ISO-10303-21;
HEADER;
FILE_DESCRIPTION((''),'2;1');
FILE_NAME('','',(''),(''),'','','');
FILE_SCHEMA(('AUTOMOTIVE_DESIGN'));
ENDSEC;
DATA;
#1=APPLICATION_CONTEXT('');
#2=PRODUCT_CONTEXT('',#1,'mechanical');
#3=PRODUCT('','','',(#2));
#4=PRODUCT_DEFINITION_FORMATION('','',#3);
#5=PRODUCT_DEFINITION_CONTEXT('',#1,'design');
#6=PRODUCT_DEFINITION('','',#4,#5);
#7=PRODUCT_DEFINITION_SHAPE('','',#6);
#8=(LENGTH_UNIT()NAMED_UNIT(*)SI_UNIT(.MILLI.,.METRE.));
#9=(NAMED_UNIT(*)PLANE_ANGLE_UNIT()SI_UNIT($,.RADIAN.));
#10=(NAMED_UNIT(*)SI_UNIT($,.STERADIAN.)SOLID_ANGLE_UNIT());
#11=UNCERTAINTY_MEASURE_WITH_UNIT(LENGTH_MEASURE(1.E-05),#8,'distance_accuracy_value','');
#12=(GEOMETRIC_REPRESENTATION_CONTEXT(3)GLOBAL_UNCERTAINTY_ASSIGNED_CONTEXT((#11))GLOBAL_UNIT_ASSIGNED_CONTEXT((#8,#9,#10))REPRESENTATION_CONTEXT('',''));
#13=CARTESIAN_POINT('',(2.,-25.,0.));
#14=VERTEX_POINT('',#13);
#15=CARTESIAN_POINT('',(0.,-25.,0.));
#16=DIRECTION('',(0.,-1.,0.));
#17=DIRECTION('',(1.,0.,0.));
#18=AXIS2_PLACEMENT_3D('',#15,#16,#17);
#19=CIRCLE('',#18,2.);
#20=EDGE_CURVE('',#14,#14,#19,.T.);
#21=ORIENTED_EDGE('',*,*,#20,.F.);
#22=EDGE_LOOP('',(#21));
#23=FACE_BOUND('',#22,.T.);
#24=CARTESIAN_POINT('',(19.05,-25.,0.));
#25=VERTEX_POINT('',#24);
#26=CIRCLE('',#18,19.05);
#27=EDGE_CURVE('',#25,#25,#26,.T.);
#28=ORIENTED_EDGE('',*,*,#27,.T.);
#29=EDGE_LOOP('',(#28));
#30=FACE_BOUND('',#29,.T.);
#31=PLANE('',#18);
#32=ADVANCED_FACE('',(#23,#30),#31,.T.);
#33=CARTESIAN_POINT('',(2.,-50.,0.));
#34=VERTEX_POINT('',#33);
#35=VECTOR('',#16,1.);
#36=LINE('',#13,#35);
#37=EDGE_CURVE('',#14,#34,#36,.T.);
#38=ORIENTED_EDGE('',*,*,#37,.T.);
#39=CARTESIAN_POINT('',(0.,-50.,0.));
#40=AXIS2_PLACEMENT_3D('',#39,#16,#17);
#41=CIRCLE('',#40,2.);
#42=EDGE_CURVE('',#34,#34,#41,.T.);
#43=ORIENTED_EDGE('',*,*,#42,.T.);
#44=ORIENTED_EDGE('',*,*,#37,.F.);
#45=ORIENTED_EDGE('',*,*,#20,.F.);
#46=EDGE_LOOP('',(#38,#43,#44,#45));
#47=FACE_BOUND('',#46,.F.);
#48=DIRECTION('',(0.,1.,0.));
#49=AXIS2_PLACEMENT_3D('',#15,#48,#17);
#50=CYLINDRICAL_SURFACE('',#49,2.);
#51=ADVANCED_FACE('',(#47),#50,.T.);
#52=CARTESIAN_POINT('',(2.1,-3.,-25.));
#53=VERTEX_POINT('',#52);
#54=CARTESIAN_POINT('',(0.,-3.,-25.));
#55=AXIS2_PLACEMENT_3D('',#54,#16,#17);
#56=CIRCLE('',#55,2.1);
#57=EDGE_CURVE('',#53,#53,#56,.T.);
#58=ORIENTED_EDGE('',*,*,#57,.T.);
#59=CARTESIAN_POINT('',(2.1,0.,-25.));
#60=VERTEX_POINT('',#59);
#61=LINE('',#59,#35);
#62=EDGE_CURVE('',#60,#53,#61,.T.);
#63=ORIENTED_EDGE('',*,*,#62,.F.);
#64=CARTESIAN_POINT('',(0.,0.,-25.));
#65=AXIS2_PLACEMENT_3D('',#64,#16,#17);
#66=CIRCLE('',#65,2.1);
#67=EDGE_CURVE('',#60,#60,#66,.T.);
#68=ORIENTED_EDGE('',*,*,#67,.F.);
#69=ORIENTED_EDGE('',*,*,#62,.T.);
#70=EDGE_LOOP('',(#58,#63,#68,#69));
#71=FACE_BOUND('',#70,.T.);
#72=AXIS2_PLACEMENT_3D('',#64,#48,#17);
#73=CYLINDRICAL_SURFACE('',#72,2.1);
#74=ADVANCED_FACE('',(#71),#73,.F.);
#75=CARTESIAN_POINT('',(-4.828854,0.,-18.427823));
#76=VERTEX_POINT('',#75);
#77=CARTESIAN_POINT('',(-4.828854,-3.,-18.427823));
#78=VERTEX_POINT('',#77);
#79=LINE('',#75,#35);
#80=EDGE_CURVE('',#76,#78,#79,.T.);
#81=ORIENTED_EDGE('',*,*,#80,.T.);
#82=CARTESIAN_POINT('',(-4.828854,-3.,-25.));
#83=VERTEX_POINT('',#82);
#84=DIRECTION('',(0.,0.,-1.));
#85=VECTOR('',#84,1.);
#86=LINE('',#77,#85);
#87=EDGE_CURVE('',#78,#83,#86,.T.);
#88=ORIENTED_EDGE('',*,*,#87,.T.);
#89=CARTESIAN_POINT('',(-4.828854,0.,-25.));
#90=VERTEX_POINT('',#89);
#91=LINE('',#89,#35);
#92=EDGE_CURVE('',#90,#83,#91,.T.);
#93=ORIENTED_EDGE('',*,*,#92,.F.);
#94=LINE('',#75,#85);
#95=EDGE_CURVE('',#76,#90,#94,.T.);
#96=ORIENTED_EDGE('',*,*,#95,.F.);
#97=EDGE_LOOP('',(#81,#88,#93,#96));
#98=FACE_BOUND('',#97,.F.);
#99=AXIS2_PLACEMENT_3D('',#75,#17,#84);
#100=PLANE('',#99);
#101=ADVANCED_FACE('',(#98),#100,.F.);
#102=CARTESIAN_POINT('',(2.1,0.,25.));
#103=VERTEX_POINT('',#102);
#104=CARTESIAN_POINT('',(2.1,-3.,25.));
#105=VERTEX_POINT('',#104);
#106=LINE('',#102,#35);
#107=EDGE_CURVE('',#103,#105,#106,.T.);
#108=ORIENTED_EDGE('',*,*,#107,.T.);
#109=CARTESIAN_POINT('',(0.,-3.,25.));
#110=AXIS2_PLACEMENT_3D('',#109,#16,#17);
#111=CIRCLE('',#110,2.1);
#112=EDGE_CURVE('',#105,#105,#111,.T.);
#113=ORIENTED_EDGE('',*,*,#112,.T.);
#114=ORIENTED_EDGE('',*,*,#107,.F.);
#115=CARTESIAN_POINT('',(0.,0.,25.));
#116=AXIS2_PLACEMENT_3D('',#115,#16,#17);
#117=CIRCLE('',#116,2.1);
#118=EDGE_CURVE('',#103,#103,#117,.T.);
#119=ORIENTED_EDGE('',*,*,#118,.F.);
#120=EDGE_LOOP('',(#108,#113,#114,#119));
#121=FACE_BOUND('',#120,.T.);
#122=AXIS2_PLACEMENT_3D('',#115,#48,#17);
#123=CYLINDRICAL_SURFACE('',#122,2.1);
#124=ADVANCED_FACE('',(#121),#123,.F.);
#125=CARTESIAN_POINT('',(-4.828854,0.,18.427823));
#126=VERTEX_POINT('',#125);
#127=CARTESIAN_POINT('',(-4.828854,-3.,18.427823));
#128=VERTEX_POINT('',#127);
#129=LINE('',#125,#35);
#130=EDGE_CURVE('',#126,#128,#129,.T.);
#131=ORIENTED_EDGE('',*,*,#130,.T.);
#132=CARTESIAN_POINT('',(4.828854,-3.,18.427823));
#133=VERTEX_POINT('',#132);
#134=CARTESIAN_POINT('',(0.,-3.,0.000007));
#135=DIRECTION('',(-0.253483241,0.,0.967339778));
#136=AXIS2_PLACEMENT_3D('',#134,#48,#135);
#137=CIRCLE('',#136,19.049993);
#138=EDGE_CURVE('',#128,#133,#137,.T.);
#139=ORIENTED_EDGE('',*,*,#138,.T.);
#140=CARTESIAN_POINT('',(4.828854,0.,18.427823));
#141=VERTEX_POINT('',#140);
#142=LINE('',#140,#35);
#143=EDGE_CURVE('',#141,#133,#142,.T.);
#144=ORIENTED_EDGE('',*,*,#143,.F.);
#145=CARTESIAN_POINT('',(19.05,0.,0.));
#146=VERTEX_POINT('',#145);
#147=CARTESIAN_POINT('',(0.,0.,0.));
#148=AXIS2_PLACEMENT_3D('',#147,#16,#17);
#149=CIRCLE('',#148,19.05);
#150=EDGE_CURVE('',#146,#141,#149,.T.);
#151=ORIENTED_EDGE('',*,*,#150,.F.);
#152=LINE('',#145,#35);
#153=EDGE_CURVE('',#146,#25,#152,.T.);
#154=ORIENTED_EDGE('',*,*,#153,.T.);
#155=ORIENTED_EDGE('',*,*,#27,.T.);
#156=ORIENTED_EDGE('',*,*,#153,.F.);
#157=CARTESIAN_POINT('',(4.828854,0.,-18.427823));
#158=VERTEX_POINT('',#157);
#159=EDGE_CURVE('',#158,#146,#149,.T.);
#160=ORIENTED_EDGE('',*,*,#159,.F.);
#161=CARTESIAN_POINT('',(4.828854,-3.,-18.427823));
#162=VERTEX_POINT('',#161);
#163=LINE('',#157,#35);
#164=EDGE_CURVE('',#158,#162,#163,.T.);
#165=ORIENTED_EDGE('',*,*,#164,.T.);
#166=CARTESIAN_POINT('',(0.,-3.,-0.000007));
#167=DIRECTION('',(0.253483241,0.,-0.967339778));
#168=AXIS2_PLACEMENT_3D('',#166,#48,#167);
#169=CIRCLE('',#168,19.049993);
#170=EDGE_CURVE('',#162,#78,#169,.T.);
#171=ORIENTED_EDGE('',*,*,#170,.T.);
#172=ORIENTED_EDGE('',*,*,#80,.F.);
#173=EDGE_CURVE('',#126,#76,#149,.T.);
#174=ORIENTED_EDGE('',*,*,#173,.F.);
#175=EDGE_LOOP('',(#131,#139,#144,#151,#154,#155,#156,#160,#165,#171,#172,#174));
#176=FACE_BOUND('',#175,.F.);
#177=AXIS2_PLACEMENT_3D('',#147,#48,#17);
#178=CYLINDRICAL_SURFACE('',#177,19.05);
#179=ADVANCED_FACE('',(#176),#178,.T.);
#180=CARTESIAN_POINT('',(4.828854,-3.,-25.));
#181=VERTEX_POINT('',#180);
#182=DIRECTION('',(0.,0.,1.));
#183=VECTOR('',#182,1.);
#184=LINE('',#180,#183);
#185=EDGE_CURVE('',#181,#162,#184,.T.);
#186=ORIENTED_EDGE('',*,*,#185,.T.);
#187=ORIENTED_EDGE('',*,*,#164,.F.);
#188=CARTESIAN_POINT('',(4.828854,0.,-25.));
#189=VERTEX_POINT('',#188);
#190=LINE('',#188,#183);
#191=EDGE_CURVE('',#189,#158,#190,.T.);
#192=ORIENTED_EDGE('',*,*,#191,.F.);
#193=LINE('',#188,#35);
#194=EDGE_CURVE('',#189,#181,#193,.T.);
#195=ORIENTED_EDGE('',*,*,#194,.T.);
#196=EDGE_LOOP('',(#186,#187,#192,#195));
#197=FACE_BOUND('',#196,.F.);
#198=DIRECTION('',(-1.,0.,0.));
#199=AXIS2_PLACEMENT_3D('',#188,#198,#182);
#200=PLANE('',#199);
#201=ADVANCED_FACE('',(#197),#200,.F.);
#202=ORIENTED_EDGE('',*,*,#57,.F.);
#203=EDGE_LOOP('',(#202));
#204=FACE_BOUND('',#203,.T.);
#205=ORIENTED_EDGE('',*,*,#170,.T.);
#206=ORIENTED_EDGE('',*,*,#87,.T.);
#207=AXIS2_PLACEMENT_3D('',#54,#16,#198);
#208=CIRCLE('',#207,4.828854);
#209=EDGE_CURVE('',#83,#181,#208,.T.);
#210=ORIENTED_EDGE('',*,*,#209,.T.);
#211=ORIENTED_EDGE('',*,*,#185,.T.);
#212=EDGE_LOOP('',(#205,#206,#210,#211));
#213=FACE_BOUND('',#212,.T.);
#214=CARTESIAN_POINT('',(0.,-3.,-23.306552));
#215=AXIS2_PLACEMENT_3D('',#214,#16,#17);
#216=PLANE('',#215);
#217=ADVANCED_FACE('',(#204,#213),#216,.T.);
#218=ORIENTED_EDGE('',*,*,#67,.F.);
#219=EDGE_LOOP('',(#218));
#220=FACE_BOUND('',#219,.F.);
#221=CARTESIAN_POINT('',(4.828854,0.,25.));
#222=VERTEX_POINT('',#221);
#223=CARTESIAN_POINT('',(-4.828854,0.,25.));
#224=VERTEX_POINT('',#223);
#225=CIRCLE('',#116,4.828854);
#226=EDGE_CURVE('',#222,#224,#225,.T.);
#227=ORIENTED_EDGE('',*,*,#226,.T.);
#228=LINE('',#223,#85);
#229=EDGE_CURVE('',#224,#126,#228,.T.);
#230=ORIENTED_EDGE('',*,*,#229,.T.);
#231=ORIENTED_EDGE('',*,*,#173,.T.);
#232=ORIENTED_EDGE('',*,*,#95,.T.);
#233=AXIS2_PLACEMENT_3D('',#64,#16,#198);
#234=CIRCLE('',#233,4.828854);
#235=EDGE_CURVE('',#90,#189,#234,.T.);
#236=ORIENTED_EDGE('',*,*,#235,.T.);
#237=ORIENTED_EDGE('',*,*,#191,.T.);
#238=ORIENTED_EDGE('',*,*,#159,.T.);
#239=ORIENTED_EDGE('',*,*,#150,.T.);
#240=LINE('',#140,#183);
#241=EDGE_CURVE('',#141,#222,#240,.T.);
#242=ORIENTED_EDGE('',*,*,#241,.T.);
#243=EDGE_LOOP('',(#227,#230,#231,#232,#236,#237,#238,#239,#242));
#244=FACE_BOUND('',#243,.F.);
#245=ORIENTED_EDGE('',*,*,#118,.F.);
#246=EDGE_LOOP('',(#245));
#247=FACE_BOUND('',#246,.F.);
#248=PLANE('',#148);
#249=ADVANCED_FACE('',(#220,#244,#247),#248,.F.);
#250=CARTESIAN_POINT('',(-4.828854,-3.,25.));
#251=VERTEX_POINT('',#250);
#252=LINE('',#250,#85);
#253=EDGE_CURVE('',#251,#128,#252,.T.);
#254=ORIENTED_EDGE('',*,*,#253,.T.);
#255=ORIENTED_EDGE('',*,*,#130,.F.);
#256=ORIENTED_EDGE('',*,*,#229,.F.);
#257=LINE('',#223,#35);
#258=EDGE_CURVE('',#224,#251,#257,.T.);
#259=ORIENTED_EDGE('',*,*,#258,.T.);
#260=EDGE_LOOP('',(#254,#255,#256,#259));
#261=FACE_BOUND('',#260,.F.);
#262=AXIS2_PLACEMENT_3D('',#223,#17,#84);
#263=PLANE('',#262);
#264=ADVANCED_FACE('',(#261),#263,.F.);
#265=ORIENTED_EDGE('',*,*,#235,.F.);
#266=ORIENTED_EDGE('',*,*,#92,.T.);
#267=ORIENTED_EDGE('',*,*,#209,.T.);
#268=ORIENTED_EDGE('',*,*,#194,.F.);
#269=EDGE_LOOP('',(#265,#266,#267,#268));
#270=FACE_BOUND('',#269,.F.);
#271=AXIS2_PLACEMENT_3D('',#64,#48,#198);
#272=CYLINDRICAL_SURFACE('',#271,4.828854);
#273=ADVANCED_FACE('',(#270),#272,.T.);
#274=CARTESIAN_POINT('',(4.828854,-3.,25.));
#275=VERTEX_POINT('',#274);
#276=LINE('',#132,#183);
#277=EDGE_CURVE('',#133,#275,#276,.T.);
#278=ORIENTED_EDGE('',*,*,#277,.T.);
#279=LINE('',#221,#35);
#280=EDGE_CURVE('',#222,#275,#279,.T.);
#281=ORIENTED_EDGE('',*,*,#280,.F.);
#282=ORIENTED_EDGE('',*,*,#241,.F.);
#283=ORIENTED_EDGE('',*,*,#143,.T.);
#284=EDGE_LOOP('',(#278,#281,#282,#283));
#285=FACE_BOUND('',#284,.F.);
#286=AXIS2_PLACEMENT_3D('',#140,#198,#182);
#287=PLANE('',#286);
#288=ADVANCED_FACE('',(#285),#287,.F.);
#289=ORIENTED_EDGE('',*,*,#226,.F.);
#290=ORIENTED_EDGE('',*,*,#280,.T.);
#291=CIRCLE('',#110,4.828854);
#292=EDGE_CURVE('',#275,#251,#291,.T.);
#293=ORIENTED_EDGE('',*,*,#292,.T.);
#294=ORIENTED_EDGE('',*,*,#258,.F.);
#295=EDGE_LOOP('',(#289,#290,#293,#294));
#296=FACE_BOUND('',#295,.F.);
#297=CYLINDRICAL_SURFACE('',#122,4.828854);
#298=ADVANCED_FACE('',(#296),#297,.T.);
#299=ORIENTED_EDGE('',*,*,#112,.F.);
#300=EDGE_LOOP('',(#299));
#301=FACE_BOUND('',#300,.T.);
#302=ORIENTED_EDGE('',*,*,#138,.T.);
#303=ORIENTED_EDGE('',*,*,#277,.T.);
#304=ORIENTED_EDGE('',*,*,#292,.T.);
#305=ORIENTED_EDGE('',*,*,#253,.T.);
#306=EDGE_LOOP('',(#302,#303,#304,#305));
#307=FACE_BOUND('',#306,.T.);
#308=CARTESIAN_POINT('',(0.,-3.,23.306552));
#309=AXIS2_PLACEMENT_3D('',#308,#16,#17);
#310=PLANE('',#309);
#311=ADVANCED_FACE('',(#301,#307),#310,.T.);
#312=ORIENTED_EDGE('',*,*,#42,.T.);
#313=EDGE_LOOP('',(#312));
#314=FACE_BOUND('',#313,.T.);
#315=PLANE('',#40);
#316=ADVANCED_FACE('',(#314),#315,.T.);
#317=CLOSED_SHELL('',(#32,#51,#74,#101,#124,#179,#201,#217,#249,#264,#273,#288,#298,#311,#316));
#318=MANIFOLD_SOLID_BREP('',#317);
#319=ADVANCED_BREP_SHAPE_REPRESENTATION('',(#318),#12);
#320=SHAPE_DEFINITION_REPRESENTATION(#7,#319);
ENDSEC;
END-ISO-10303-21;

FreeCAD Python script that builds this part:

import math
import FreeCAD as App
import Part
import Sketcher
from FreeCAD import Vector

doc = App.newDocument("Part")
body = doc.addObject("PartDesign::Body", "Body")

sketch1 = body.newObject("Sketcher::SketchObject", "Sketch")
sketch1.AttachmentSupport = (doc.getObject("XZ_Plane"), [""])
sketch1.MapMode = "FlatFace"
sketch1.addGeometry(Part.Circle(Vector(0, 0, 0), Vector(0, 0, 1), 19), False)
sketch1.addConstraint([
    Sketcher.Constraint("Coincident", 0, 3, -1, 1),
    Sketcher.Constraint("Diameter", 0, 38.1),
])
pad1 = body.newObject("PartDesign::Pad", "Pad")
pad1.Profile = sketch1
pad1.Length = 25

sketch2 = body.newObject("Sketcher::SketchObject", "Sketch001")
sketch2.AttachmentSupport = (doc.getObject("XZ_Plane"), [""])
sketch2.MapMode = "FlatFace"
sketch2.addGeometry([
    Part.ArcOfCircle(Part.Circle(Vector(0, 25, 0), Vector(0, 0, 1), 4.8), math.radians(0), math.radians(180)),
    Part.LineSegment(Vector(-4.8, 25, 0), Vector(-4.8, 18.4, 0)),
    Part.ArcOfCircle(Part.Circle(Vector(0, 0, 0), Vector(0, 0, 1), 19), math.radians(75), math.radians(105)),
    Part.LineSegment(Vector(4.8, 18.4, 0), Vector(4.8, 25, 0)),
    Part.Circle(Vector(0, 25, 0), Vector(0, 0, 1), 2.1),
    Part.ArcOfCircle(Part.Circle(Vector(0, -25, 0), Vector(0, 0, 1), 4.8), math.radians(180), math.radians(360)),
    Part.LineSegment(Vector(4.8, -25, 0), Vector(4.8, -18.4, 0)),
    Part.ArcOfCircle(Part.Circle(Vector(0, 0, 0), Vector(0, 0, 1), 19), math.radians(-105), math.radians(-75)),
    Part.LineSegment(Vector(-4.8, -18.4, 0), Vector(-4.8, -25, 0)),
    Part.Circle(Vector(0, -25, 0), Vector(0, 0, 1), 2.1),
], False)
sketch2.addConstraint([
    Sketcher.Constraint("Tangent", 0, 2, 1, 1),
    Sketcher.Constraint("Coincident", 1, 2, 2, 2),
    Sketcher.Constraint("Coincident", 2, 1, 3, 1),
    Sketcher.Constraint("Tangent", 3, 2, 0, 1),
    Sketcher.Constraint("Tangent", 5, 2, 6, 1),
    Sketcher.Constraint("Coincident", 6, 2, 7, 2),
    Sketcher.Constraint("Coincident", 7, 1, 8, 1),
    Sketcher.Constraint("Tangent", 8, 2, 5, 1),
    Sketcher.Constraint("Vertical", 1),
    Sketcher.Constraint("Vertical", 3),
    Sketcher.Constraint("Vertical", 6),
    Sketcher.Constraint("Vertical", 8),
    Sketcher.Constraint("Coincident", 2, 3, -1, 1),
    Sketcher.Constraint("Coincident", 7, 3, -1, 1),
    Sketcher.Constraint("Coincident", 4, 3, 0, 3),
    Sketcher.Constraint("Coincident", 9, 3, 5, 3),
    Sketcher.Constraint("Equal", 0, 5),
    Sketcher.Constraint("Equal", 2, 7),
    Sketcher.Constraint("Equal", 4, 9),
    Sketcher.Constraint("Symmetric", 0, 3, 5, 3, -1, 1),
    Sketcher.Constraint("PointOnObject", 0, 3, -2),
    Sketcher.Constraint("Diameter", 4, 4.2),
    Sketcher.Constraint("DistanceY", -1, 1, 0, 3, 25.0),
    Sketcher.Constraint("Radius", 0, 4.828854),
    Sketcher.Constraint("Radius", 2, 19.049993),
])
pad2 = body.newObject("PartDesign::Pad", "Pad001")
pad2.Profile = sketch2
pad2.Length = 3

sketch3 = body.newObject("Sketcher::SketchObject", "Sketch002")
sketch3.AttachmentSupport = (doc.getObject("XZ_Plane"), [""])
sketch3.MapMode = "FlatFace"
sketch3.AttachmentOffset = App.Placement(Vector(0, 0, 25), App.Rotation())
sketch3.addGeometry(Part.Circle(Vector(0, 0, 0), Vector(0, 0, 1), 2), False)
sketch3.addConstraint([
    Sketcher.Constraint("Coincident", 0, 3, -1, 1),
    Sketcher.Constraint("Diameter", 0, 4.0),
])
pad3 = body.newObject("PartDesign::Pad", "Pad002")
pad3.Profile = sketch3
pad3.Length = 25

doc.recompute()
